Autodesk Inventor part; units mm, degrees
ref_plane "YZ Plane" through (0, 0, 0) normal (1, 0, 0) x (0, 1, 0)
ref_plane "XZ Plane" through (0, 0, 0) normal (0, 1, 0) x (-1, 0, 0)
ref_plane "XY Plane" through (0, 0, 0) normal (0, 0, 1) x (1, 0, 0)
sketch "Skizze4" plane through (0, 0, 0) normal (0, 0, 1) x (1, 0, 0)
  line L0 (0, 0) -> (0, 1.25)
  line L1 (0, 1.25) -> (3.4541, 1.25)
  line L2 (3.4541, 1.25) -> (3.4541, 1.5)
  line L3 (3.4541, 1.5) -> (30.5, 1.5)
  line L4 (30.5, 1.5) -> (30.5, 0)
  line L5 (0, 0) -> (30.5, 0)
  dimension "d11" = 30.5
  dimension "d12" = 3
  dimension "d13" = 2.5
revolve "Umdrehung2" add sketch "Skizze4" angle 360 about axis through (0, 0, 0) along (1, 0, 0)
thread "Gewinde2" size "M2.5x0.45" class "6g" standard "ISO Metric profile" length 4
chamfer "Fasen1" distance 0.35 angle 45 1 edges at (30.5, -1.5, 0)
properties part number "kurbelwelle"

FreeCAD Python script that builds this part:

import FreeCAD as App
import Part
import Sketcher

V = App.Vector


def edges_at(feature, points):
    """Names of the edges that pass closest to the given points."""
    edges = feature.Shape.Edges
    near = lambda p: min(range(len(edges)), key=lambda i: edges[i].distToShape(Part.Vertex(*p))[0])
    return sorted({f"Edge{near(p) + 1}" for p in points})


def add_polygon(sketch, points):
    """Adds a closed chain of lines whose ends are joined by coincident constraints."""
    first, n = sketch.GeometryCount, len(points)
    for a, b in zip(points, points[1:] + points[:1]):
        sketch.addGeometry(Part.LineSegment(App.Vector(*a, 0), App.Vector(*b, 0)), False)
    for i in range(n):
        sketch.addConstraint(Sketcher.Constraint("Coincident", first + i, 2, first + (i + 1) % n, 1))

doc = App.newDocument("Part")
body = doc.addObject("PartDesign::Body", "Body")

# Sketch on XY plane
sketch1 = body.newObject("Sketcher::SketchObject", "Sketch")
sketch1.AttachmentSupport = (doc.getObject("XY_Plane"), [""])
sketch1.MapMode = "FlatFace"
add_polygon(sketch1, [(0, 1.25), (0, 0), (30.5, 0), (30.5, 1.5), (3.45, 1.5), (3.45, 1.25)])  # lines 0-5
sketch1.addConstraint([
    Sketcher.Constraint("Vertical", 0),
    Sketcher.Constraint("Horizontal", 1),
    Sketcher.Constraint("Vertical", 2),
    Sketcher.Constraint("Horizontal", 3),
    Sketcher.Constraint("Vertical", 4),
    Sketcher.Constraint("Horizontal", 5),
    Sketcher.Constraint("Coincident", 0, 2, -1, 1),
    Sketcher.Constraint("DistanceX", 1, 1, 1, 2, 30.5),
    Sketcher.Constraint("DistanceY", 2, 1, 2, 2, 1.5),
    Sketcher.Constraint("DistanceY", 0, 2, 0, 1, 1.25),
    Sketcher.Constraint("DistanceX", 3, 2, 3, 1, 27.046),
])
revolution = body.newObject("PartDesign::Revolution", "Revolution")
revolution.Profile = sketch1
revolution.ReferenceAxis = (sketch1, ["H_Axis"])
revolution.Angle = 360
doc.recompute()

chamfer = body.newObject("PartDesign::Chamfer", "Chamfer")
chamfer.Base = (revolution, edges_at(revolution, [(30.5, -1.5, 0)]))
chamfer.Size = 0.35

doc.recompute()
